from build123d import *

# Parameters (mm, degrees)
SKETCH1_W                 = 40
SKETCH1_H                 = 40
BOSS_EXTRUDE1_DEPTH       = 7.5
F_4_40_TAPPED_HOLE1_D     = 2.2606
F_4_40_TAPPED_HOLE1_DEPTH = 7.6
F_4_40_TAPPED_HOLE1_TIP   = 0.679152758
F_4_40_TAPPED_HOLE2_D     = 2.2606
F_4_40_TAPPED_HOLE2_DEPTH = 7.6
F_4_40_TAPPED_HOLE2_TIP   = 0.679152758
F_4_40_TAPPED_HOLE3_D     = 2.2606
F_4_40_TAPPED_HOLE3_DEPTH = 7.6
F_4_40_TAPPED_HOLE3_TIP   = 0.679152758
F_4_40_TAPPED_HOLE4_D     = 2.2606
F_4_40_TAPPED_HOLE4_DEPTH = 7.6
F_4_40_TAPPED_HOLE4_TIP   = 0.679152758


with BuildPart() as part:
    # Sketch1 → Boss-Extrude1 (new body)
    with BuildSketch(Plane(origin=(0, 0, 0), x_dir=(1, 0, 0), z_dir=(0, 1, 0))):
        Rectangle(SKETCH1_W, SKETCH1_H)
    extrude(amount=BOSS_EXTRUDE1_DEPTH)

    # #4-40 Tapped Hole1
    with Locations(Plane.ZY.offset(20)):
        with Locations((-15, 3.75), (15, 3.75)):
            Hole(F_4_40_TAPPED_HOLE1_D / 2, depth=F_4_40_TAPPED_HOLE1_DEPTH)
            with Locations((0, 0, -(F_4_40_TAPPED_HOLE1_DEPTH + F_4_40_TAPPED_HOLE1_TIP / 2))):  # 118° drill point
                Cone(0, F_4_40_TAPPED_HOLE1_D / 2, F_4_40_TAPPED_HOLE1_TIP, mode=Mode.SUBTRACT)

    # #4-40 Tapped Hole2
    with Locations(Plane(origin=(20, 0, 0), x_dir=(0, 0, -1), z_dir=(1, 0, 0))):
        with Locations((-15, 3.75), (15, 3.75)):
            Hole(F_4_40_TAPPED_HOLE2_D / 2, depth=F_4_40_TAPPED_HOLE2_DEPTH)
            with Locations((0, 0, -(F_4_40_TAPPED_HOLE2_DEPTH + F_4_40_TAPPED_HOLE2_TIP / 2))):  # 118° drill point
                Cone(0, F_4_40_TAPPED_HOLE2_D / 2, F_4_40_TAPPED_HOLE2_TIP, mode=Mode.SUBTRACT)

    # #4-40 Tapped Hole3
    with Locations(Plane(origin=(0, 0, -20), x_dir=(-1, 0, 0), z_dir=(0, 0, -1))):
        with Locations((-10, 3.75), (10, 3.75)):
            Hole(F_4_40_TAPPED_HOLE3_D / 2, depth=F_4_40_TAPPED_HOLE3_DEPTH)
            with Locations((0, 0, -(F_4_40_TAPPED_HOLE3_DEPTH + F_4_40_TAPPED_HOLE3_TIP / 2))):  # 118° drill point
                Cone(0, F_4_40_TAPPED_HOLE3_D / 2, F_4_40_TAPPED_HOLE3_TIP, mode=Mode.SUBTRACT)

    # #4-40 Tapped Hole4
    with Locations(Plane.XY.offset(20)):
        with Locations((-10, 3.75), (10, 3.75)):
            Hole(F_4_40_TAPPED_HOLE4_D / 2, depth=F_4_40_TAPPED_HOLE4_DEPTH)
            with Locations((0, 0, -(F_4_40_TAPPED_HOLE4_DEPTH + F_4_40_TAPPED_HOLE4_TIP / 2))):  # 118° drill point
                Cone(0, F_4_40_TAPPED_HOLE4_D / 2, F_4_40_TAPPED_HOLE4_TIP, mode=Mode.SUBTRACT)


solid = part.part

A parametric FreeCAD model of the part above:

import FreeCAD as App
import Part
import Sketcher

doc = App.newDocument("Part")
body = doc.addObject("PartDesign::Body", "Body")

# Sketch on XZ plane
sketch1 = doc.addObject("Sketcher::SketchObject", "Sketch")
body.addObject(sketch1)
sketch1.AttachmentSupport = (doc.XZ_Plane, [""])
sketch1.MapMode = "FlatFace"
sketch1.addGeometry([
    Part.LineSegment(App.Vector(-20, -20, 0), App.Vector(-20, 20, 0)),
    Part.LineSegment(App.Vector(-20, 20, 0), App.Vector(20, 20, 0)),
    Part.LineSegment(App.Vector(20, 20, 0), App.Vector(20, -20, 0)),
    Part.LineSegment(App.Vector(20, -20, 0), App.Vector(-20, -20, 0)),
], False)
sketch1.addConstraint([
    Sketcher.Constraint("Coincident", 0, 2, 1, 1),
    Sketcher.Constraint("Coincident", 1, 2, 2, 1),
    Sketcher.Constraint("Coincident", 2, 2, 3, 1),
    Sketcher.Constraint("Coincident", 3, 2, 0, 1),
    Sketcher.Constraint("Vertical", 0),
    Sketcher.Constraint("Horizontal", 1),
    Sketcher.Constraint("Vertical", 2),
    Sketcher.Constraint("Horizontal", 3),
    Sketcher.Constraint("Symmetric", 0, 2, 2, 2, -1, 1),
    Sketcher.Constraint("Equal", 3, 0),
    Sketcher.Constraint("DistanceX", 1, 1, 1, 2, 40.0),
])
pad1 = doc.addObject("PartDesign::Pad", "Pad")
body.addObject(pad1)
pad1.Profile = sketch1
pad1.Length = 7.5
pad1.Reversed = True

# Sketch on YZ plane
sketch2 = doc.addObject("Sketcher::SketchObject", "Sketch001")
body.addObject(sketch2)
sketch2.AttachmentSupport = (doc.YZ_Plane, [""])
sketch2.MapMode = "FlatFace"
sketch2.AttachmentOffset = App.Placement(App.Vector(0, 0, -20), App.Rotation())
sketch2.addGeometry([
    Part.Circle(App.Vector(3.75, -15, 0), App.Vector(0, 0, 1), 1.1303),
    Part.Circle(App.Vector(3.75, 15, 0), App.Vector(0, 0, 1), 1.1303),
], False)
sketch2.addConstraint([
    Sketcher.Constraint("Equal", 0, 1),
    Sketcher.Constraint("Symmetric", 0, 3, 1, 3, -1),
    Sketcher.Constraint("DistanceY", 0, 3, -1, 1, 15.0),
    Sketcher.Constraint("Diameter", 0, 2.2606),
    Sketcher.Constraint("DistanceX", -1, 1, 0, 3, 3.75),
])
doc.recompute()
hole = doc.addObject("PartDesign::Hole", "Hole")
body.addObject(hole)
hole.Profile = sketch2
hole.ThreadType = "None"
hole.Diameter = 2.2606
hole.DepthType = "Dimension"
hole.Depth = 7.6
hole.DrillPoint = "Angled"
hole.DrillPointAngle = 118
hole.Reversed = True

# Sketch on YZ plane
sketch3 = doc.addObject("Sketcher::SketchObject", "Sketch002")
body.addObject(sketch3)
sketch3.AttachmentSupport = (doc.YZ_Plane, [""])
sketch3.MapMode = "FlatFace"
sketch3.AttachmentOffset = App.Placement(App.Vector(0, 0, 20), App.Rotation())
sketch3.addGeometry([
    Part.Circle(App.Vector(3.75, 15, 0), App.Vector(0, 0, 1), 1.1303),
    Part.Circle(App.Vector(3.75, -15, 0), App.Vector(0, 0, 1), 1.1303),
], False)
sketch3.addConstraint([
    Sketcher.Constraint("Equal", 0, 1),
    Sketcher.Constraint("Symmetric", 0, 3, 1, 3, -1),
    Sketcher.Constraint("DistanceY", -1, 1, 0, 3, 15.0),
    Sketcher.Constraint("Diameter", 0, 2.2606),
    Sketcher.Constraint("DistanceX", -1, 1, 0, 3, 3.75),
])
doc.recompute()
hole2 = doc.addObject("PartDesign::Hole", "Hole001")
body.addObject(hole2)
hole2.Profile = sketch3
hole2.ThreadType = "None"
hole2.Diameter = 2.2606
hole2.DepthType = "Dimension"
hole2.Depth = 7.6
hole2.DrillPoint = "Angled"
hole2.DrillPointAngle = 118

# Sketch on XY plane
sketch4 = doc.addObject("Sketcher::SketchObject", "Sketch003")
body.addObject(sketch4)
sketch4.AttachmentSupport = (doc.XY_Plane, [""])
sketch4.MapMode = "FlatFace"
sketch4.AttachmentOffset = App.Placement(App.Vector(0, 0, -20), App.Rotation())
sketch4.addGeometry([
    Part.Circle(App.Vector(10, 3.75, 0), App.Vector(0, 0, 1), 1.1303),
    Part.Circle(App.Vector(-10, 3.75, 0), App.Vector(0, 0, 1), 1.1303),
], False)
sketch4.addConstraint([
    Sketcher.Constraint("Equal", 0, 1),
    Sketcher.Constraint("Symmetric", 0, 3, 1, 3, -2),
    Sketcher.Constraint("DistanceX", -1, 1, 0, 3, 10.0),
    Sketcher.Constraint("Diameter", 0, 2.2606),
    Sketcher.Constraint("DistanceY", -1, 1, 0, 3, 3.75),
])
doc.recompute()
hole3 = doc.addObject("PartDesign::Hole", "Hole002")
body.addObject(hole3)
hole3.Profile = sketch4
hole3.ThreadType = "None"
hole3.Diameter = 2.2606
hole3.DepthType = "Dimension"
hole3.Depth = 7.6
hole3.DrillPoint = "Angled"
hole3.DrillPointAngle = 118
hole3.Reversed = True

# Sketch on XY plane
sketch5 = doc.addObject("Sketcher::SketchObject", "Sketch004")
body.addObject(sketch5)
sketch5.AttachmentSupport = (doc.XY_Plane, [""])
sketch5.MapMode = "FlatFace"
sketch5.AttachmentOffset = App.Placement(App.Vector(0, 0, 20), App.Rotation())
sketch5.addGeometry([
    Part.Circle(App.Vector(-10, 3.75, 0), App.Vector(0, 0, 1), 1.1303),
    Part.Circle(App.Vector(10, 3.75, 0), App.Vector(0, 0, 1), 1.1303),
], False)
sketch5.addConstraint([
    Sketcher.Constraint("Equal", 0, 1),
    Sketcher.Constraint("Symmetric", 0, 3, 1, 3, -2),
    Sketcher.Constraint("DistanceX", 0, 3, -1, 1, 10.0),
    Sketcher.Constraint("Diameter", 0, 2.2606),
    Sketcher.Constraint("DistanceY", -1, 1, 0, 3, 3.75),
])
doc.recompute()
hole4 = doc.addObject("PartDesign::Hole", "Hole003")
body.addObject(hole4)
hole4.Profile = sketch5
hole4.ThreadType = "None"
hole4.Diameter = 2.2606
hole4.DepthType = "Dimension"
hole4.Depth = 7.6
hole4.DrillPoint = "Angled"
hole4.DrillPointAngle = 118

doc.recompute()
